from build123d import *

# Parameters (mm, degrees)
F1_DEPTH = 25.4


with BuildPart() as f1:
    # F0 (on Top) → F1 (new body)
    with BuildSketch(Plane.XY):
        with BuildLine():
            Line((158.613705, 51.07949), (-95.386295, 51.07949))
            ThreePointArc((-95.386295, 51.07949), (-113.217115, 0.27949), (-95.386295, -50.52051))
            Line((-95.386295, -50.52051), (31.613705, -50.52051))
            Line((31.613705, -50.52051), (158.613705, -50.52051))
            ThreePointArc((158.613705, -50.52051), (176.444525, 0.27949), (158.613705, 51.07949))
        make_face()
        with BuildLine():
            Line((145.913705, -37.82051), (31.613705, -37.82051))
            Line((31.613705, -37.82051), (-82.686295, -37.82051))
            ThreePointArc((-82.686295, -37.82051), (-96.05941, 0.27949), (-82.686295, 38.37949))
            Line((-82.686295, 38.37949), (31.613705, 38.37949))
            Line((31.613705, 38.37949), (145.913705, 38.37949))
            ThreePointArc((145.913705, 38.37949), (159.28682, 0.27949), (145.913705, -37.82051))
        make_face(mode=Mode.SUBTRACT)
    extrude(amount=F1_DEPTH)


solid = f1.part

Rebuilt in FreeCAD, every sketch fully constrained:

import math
import FreeCAD as App
import Part
import Sketcher
from FreeCAD import Vector
Q = App.Units.Quantity

doc = App.newDocument("Part")
params = doc.addObject("Spreadsheet::Sheet", "Params")
for row, (alias, value) in enumerate([
    ("sketch1_radius", "3.2 in"),
    ("sketch1_radius2", "2.4 in"),
    ("sketch1_width", "10 in"),
    ("sketch1_width2", "9 in"),
    ("pad1_length", "1 in"),
], start=1):
    params.set(f"A{row}", alias)
    params.set(f"B{row}", "=" + value)
    params.setAlias(f"B{row}", alias)

body = doc.addObject("PartDesign::Body", "Body")

# Sketch on XY plane
sketch1 = doc.addObject("Sketcher::SketchObject", "Sketch")
body.addObject(sketch1)
sketch1.AttachmentSupport = (doc.XY_Plane, [""])
sketch1.MapMode = "FlatFace"
sketch1.addGeometry([
    Part.LineSegment(Vector(159, 51, 0), Vector(-95, 51, 0)),  # 0
    Part.ArcOfCircle(Part.Circle(Vector(-32, 0, 0), Vector(0, 0, 1), 81), math.radians(141), math.radians(219)),  # 1
    Part.LineSegment(Vector(-95, -51, 0), Vector(159, -51, 0)),  # 2
    Part.ArcOfCircle(Part.Circle(Vector(95, 0, 0), Vector(0, 0, 1), 81), math.radians(-39), math.radians(39)),  # 3
    Part.ArcOfCircle(Part.Circle(Vector(98, 0, 0), Vector(0, 0, 1), 61), math.radians(-39), math.radians(39)),  # 4
    Part.LineSegment(Vector(146, -38, 0), Vector(-83, -38, 0)),  # 5
    Part.ArcOfCircle(Part.Circle(Vector(-35, 0, 0), Vector(0, 0, 1), 61), math.radians(141), math.radians(219)),  # 6
    Part.LineSegment(Vector(-83, 38, 0), Vector(146, 38, 0)),  # 7
], False)
sketch1.addConstraint([
    Sketcher.Constraint("Coincident", 0, 2, 1, 1),
    Sketcher.Constraint("Coincident", 1, 2, 2, 1),
    Sketcher.Constraint("Coincident", 2, 2, 3, 1),
    Sketcher.Constraint("Coincident", 3, 2, 0, 1),
    Sketcher.Constraint("Coincident", 4, 1, 5, 1),
    Sketcher.Constraint("Coincident", 5, 2, 6, 2),
    Sketcher.Constraint("Coincident", 6, 1, 7, 1),
    Sketcher.Constraint("Coincident", 7, 2, 4, 2),
    Sketcher.Constraint("Horizontal", 0),
    Sketcher.Constraint("Horizontal", 2),
    Sketcher.Constraint("Horizontal", 5),
    Sketcher.Constraint("Horizontal", 7),
    Sketcher.Constraint("Equal", 1, 3),
    Sketcher.Constraint("Equal", 4, 6),
    Sketcher.Constraint("Horizontal", 1, 3, 3, 3),
    Sketcher.Constraint("Horizontal", 3, 3, 4, 3),
    Sketcher.Constraint("Horizontal", 4, 3, 6, 3),
    Sketcher.Constraint("Vertical", 0, 2, 1, 2),
    Sketcher.Constraint("Vertical", 5, 2, 6, 1),
    Sketcher.Constraint("Radius", 1, Q("3.2 in")),
    Sketcher.Constraint("Radius", 4, Q("2.4 in")),
    Sketcher.Constraint("DistanceX", 0, 2, 0, 1, Q("10 in")),
    Sketcher.Constraint("DistanceX", 5, 2, 5, 1, Q("9 in")),
    Sketcher.Constraint("DistanceY", 6, 3, 0, 2, Q("2 in")),
    Sketcher.Constraint("DistanceY", 5, 2, 6, 1, Q("3 in")),
    Sketcher.Constraint("DistanceX", 4, 1, 2, 2, Q("0.5 in")),
    Sketcher.Constraint("DistanceY", -1, 1, 1, 3, Q("0.27949 mm")),
    Sketcher.Constraint("DistanceX", -1, 1, 4, 3, Q("98.326819 mm")),
])
sketch1.setExpression("Constraints[19]", "Params.sketch1_radius")
sketch1.setExpression("Constraints[20]", "Params.sketch1_radius2")
sketch1.setExpression("Constraints[21]", "Params.sketch1_width")
sketch1.setExpression("Constraints[22]", "Params.sketch1_width2")
pad1 = doc.addObject("PartDesign::Pad", "Pad")
body.addObject(pad1)
pad1.Profile = sketch1
pad1.setExpression("Length", "Params.pad1_length")

doc.recompute()
